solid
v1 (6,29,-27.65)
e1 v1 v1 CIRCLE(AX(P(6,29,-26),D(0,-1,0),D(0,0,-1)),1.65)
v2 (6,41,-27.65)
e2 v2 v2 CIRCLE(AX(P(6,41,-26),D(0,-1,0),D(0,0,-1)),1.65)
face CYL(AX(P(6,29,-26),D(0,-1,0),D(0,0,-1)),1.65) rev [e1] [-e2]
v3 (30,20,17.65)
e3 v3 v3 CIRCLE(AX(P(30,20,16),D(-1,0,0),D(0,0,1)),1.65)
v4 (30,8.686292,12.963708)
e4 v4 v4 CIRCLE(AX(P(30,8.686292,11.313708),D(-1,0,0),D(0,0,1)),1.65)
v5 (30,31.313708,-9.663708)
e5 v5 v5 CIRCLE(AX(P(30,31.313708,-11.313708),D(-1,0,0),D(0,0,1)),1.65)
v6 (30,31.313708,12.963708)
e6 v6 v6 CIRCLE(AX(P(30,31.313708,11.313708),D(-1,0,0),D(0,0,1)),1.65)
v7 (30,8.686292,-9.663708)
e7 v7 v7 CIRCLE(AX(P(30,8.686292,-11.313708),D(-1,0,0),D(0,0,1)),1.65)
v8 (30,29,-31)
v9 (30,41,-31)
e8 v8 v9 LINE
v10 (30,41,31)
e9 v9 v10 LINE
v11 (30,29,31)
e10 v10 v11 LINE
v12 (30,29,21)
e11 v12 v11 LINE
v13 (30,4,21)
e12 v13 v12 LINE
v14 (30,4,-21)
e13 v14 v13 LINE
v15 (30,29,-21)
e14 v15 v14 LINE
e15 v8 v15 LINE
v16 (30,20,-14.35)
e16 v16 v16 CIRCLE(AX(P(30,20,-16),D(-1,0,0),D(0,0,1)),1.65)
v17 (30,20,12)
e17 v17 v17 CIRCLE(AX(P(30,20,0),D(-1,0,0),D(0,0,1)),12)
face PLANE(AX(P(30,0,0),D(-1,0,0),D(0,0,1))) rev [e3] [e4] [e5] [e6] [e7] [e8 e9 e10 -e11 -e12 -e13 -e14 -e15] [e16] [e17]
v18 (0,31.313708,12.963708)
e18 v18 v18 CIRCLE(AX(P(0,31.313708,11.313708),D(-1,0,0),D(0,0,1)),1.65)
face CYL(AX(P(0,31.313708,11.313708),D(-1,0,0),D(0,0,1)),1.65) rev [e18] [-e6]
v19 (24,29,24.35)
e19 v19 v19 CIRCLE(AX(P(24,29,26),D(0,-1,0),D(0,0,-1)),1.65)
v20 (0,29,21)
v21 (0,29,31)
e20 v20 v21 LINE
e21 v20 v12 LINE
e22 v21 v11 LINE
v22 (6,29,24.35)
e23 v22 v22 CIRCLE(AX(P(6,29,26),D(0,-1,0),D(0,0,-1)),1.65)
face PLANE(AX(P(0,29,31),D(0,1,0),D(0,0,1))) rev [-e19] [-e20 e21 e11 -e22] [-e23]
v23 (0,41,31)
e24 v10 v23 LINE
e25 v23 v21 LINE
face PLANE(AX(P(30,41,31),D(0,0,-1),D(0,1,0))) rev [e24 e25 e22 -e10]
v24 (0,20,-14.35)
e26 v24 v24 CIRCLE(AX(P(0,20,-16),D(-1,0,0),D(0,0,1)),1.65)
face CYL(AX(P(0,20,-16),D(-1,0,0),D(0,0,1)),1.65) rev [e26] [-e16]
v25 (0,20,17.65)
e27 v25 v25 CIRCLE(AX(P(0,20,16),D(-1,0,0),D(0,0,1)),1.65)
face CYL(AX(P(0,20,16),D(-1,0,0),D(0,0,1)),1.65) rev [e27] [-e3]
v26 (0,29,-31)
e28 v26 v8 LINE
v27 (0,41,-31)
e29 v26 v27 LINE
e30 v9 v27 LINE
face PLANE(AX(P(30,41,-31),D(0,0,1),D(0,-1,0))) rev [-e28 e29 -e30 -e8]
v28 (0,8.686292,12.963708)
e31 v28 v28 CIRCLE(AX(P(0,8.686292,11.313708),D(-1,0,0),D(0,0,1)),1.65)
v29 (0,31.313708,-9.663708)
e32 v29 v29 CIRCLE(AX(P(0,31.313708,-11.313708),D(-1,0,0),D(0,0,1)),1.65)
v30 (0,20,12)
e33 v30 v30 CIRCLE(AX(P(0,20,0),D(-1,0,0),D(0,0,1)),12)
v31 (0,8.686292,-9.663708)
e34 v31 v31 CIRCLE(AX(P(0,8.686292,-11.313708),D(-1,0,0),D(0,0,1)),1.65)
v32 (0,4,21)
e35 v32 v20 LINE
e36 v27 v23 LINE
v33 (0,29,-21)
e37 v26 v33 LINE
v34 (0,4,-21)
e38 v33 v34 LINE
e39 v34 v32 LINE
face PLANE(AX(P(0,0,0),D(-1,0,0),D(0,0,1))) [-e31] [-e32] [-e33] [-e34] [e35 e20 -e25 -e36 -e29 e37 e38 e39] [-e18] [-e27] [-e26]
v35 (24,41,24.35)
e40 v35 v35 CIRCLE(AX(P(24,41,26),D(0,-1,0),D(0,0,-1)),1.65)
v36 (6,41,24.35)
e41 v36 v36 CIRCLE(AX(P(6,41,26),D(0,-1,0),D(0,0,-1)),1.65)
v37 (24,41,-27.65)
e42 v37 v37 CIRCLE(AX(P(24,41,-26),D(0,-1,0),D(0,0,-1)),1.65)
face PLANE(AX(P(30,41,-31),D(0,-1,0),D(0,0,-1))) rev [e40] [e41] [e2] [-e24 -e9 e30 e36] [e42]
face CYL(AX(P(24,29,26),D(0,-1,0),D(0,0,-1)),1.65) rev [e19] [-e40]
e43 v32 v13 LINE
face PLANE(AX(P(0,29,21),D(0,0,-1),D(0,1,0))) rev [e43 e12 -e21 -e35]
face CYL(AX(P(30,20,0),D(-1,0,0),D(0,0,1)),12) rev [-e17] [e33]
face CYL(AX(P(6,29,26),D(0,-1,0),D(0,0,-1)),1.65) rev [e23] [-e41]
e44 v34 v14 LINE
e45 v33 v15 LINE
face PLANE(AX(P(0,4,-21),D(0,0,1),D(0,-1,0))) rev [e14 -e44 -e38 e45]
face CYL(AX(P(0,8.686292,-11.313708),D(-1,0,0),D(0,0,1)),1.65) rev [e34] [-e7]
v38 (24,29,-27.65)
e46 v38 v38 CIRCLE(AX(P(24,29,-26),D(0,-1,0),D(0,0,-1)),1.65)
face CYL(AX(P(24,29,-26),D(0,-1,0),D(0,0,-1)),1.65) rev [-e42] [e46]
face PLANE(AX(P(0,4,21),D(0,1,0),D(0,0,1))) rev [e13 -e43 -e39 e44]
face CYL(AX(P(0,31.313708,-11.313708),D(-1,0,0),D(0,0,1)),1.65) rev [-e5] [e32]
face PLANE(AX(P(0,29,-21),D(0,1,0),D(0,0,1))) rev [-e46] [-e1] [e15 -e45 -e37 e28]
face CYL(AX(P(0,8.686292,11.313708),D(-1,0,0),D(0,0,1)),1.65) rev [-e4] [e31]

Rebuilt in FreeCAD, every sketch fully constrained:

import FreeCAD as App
import Part
import Sketcher
from FreeCAD import Vector
Q = App.Units.Quantity

doc = App.newDocument("Part")
body = doc.addObject("PartDesign::Body", "Body")

sketch1 = doc.addObject("Sketcher::SketchObject", "Sketch")
body.addObject(sketch1)
sketch1.AttachmentSupport = (doc.YZ_Plane, [""])
sketch1.MapMode = "FlatFace"
sketch1.addGeometry(Part.LineSegment(Vector(41, 31, 0), Vector(-41, 31, 0)), False)
sketch1.addGeometry(Part.LineSegment(Vector(-41, 31, 0), Vector(-41, -31, 0)), False)
sketch1.addGeometry(Part.LineSegment(Vector(-41, -31, 0), Vector(41, -31, 0)), False)
sketch1.addGeometry(Part.LineSegment(Vector(41, -31, 0), Vector(41, 31, 0)), False)
sketch1.addConstraint(Sketcher.Constraint("Coincident", 0, 2, 1, 1))
sketch1.addConstraint(Sketcher.Constraint("Coincident", 1, 2, 2, 1))
sketch1.addConstraint(Sketcher.Constraint("Coincident", 2, 2, 3, 1))
sketch1.addConstraint(Sketcher.Constraint("Coincident", 3, 2, 0, 1))
sketch1.addConstraint(Sketcher.Constraint("Horizontal", 0))
sketch1.addConstraint(Sketcher.Constraint("Vertical", 1))
sketch1.addConstraint(Sketcher.Constraint("Horizontal", 2))
sketch1.addConstraint(Sketcher.Constraint("Vertical", 3))
sketch1.addConstraint(Sketcher.Constraint("Symmetric", 0, 2, 2, 2, -1, 1))
sketch1.addConstraint(Sketcher.Constraint("DistanceX", 0, 2, 0, 1, Q("82 mm")))
sketch1.addConstraint(Sketcher.Constraint("DistanceY", 1, 2, 1, 1, Q("62 mm")))
pad1 = doc.addObject("PartDesign::Pad", "Pad")
body.addObject(pad1)
pad1.Profile = sketch1
pad1.Length = 30

sketch2 = doc.addObject("Sketcher::SketchObject", "Sketch001")
body.addObject(sketch2)
sketch2.AttachmentSupport = (doc.YZ_Plane, [""])
sketch2.MapMode = "FlatFace"
sketch2.addGeometry(Part.Circle(Vector(20, 0, 0), Vector(0, 0, 1), 12), False)
sketch2.addConstraint(Sketcher.Constraint("PointOnObject", 0, 3, -1))
sketch2.addConstraint(Sketcher.Constraint("Diameter", 0, Q("24 mm")))
sketch2.addConstraint(Sketcher.Constraint("DistanceX", -1, 1, 0, 3, Q("20 mm")))
pocket1 = doc.addObject("PartDesign::Pocket", "Pocket")
body.addObject(pocket1)
pocket1.Profile = sketch2
pocket1.Type = "ThroughAll"
pocket1.Reversed = True

sketch3 = doc.addObject("Sketcher::SketchObject", "Sketch002")
body.addObject(sketch3)
sketch3.AttachmentSupport = (doc.YZ_Plane, [""])
sketch3.MapMode = "FlatFace"
sketch3.AttachmentOffset = App.Placement(Vector(0, 0, 30), App.Rotation())
sketch3.addGeometry(Part.LineSegment(Vector(29, 21, 0), Vector(29, 31, 0)), False)
sketch3.addGeometry(Part.LineSegment(Vector(29, 31, 0), Vector(-41, 31, 0)), False)
sketch3.addGeometry(Part.LineSegment(Vector(-41, 31, 0), Vector(-41, -31, 0)), False)
sketch3.addGeometry(Part.LineSegment(Vector(-41, -31, 0), Vector(29, -31, 0)), False)
sketch3.addGeometry(Part.LineSegment(Vector(29, -31, 0), Vector(29, -21, 0)), False)
sketch3.addGeometry(Part.LineSegment(Vector(29, -21, 0), Vector(4, -21, 0)), False)
sketch3.addGeometry(Part.LineSegment(Vector(4, -21, 0), Vector(4, 21, 0)), False)
sketch3.addGeometry(Part.LineSegment(Vector(4, 21, 0), Vector(29, 21, 0)), False)
sketch3.addConstraint(Sketcher.Constraint("Coincident", 0, 2, 1, 1))
sketch3.addConstraint(Sketcher.Constraint("Coincident", 1, 2, 2, 1))
sketch3.addConstraint(Sketcher.Constraint("Coincident", 2, 2, 3, 1))
sketch3.addConstraint(Sketcher.Constraint("Coincident", 3, 2, 4, 1))
sketch3.addConstraint(Sketcher.Constraint("Coincident", 4, 2, 5, 1))
sketch3.addConstraint(Sketcher.Constraint("Coincident", 5, 2, 6, 1))
sketch3.addConstraint(Sketcher.Constraint("Coincident", 6, 2, 7, 1))
sketch3.addConstraint(Sketcher.Constraint("Coincident", 7, 2, 0, 1))
sketch3.addConstraint(Sketcher.Constraint("Vertical", 0))
sketch3.addConstraint(Sketcher.Constraint("Horizontal", 1))
sketch3.addConstraint(Sketcher.Constraint("Vertical", 2))
sketch3.addConstraint(Sketcher.Constraint("Horizontal", 3))
sketch3.addConstraint(Sketcher.Constraint("Vertical", 4))
sketch3.addConstraint(Sketcher.Constraint("Horizontal", 5))
sketch3.addConstraint(Sketcher.Constraint("Vertical", 6))
sketch3.addConstraint(Sketcher.Constraint("Horizontal", 7))
sketch3.addConstraint(Sketcher.Constraint("Symmetric", 0, 2, 3, 2, -1))
sketch3.addConstraint(Sketcher.Constraint("Equal", 0, 4))
sketch3.addConstraint(Sketcher.Constraint("DistanceX", 1, 2, 1, 1, Q("70 mm")))
sketch3.addConstraint(Sketcher.Constraint("DistanceX", 5, 2, 5, 1, Q("25 mm")))
sketch3.addConstraint(Sketcher.Constraint("DistanceY", 0, 1, 0, 2, Q("10 mm")))
sketch3.addConstraint(Sketcher.Constraint("DistanceY", 2, 2, 2, 1, Q("62 mm")))
sketch3.addConstraint(Sketcher.Constraint("DistanceX", -1, 1, 0, 2, Q("29 mm")))
pocket2 = doc.addObject("PartDesign::Pocket", "Pocket001")
body.addObject(pocket2)
pocket2.Profile = sketch3
pocket2.Type = "ThroughAll"

sketch4 = doc.addObject("Sketcher::SketchObject", "Sketch003")
body.addObject(sketch4)
sketch4.AttachmentSupport = (doc.YZ_Plane, [""])
sketch4.MapMode = "FlatFace"
sketch4.addGeometry(Part.Circle(Vector(31.3, -11.3, 0), Vector(0, 0, 1), 1.6), False)
sketch4.addGeometry(Part.Circle(Vector(8.7, 11.3, 0), Vector(0, 0, 1), 1.6), False)
sketch4.addGeometry(Part.Circle(Vector(31.3, 11.3, 0), Vector(0, 0, 1), 1.6), False)
sketch4.addGeometry(Part.Circle(Vector(20, 16, 0), Vector(0, 0, 1), 1.6), False)
sketch4.addGeometry(Part.Circle(Vector(8.7, -11.3, 0), Vector(0, 0, 1), 1.6), False)
sketch4.addGeometry(Part.Circle(Vector(20, -16, 0), Vector(0, 0, 1), 1.6), False)
sketch4.addConstraint(Sketcher.Constraint("Equal", 0, 1))
sketch4.addConstraint(Sketcher.Constraint("Equal", 1, 2))
sketch4.addConstraint(Sketcher.Constraint("Equal", 2, 3))
sketch4.addConstraint(Sketcher.Constraint("Equal", 3, 4))
sketch4.addConstraint(Sketcher.Constraint("Equal", 4, 5))
sketch4.addConstraint(Sketcher.Constraint("Symmetric", 0, 3, 2, 3, -1))
sketch4.addConstraint(Sketcher.Constraint("Symmetric", 1, 3, 4, 3, -1))
sketch4.addConstraint(Sketcher.Constraint("Symmetric", 3, 3, 5, 3, -1))
sketch4.addConstraint(Sketcher.Constraint("Horizontal", 1, 3, 2, 3))
sketch4.addConstraint(Sketcher.Constraint("Diameter", 0, Q("3.3 mm")))
sketch4.addConstraint(Sketcher.Constraint("DistanceX", -1, 1, 3, 3, Q("20 mm")))
sketch4.addConstraint(Sketcher.Constraint("DistanceY", -1, 1, 3, 3, Q("16 mm")))
sketch4.addConstraint(Sketcher.Constraint("DistanceX", -1, 1, 0, 3, Q("31.313708 mm")))
sketch4.addConstraint(Sketcher.Constraint("DistanceY", 0, 3, -1, 1, Q("11.313708 mm")))
sketch4.addConstraint(Sketcher.Constraint("DistanceX", -1, 1, 1, 3, Q("8.686292 mm")))
doc.recompute()
hole = doc.addObject("PartDesign::Hole", "Hole")
body.addObject(hole)
hole.Profile = sketch4
hole.ThreadType = "None"
hole.Diameter = 3.3
hole.DepthType = "ThroughAll"
hole.Reversed = True

sketch5 = doc.addObject("Sketcher::SketchObject", "Sketch004")
body.addObject(sketch5)
sketch5.AttachmentSupport = (doc.XZ_Plane, [""])
sketch5.MapMode = "FlatFace"
sketch5.AttachmentOffset = App.Placement(Vector(0, 0, -29), App.Rotation())
sketch5.addGeometry(Part.Circle(Vector(6, -26, 0), Vector(0, 0, 1), 1.6), False)
sketch5.addGeometry(Part.Circle(Vector(24, -26, 0), Vector(0, 0, 1), 1.6), False)
sketch5.addGeometry(Part.Circle(Vector(6, 26, 0), Vector(0, 0, 1), 1.6), False)
sketch5.addGeometry(Part.Circle(Vector(24, 26, 0), Vector(0, 0, 1), 1.6), False)
sketch5.addConstraint(Sketcher.Constraint("Equal", 0, 1))
sketch5.addConstraint(Sketcher.Constraint("Equal", 1, 2))
sketch5.addConstraint(Sketcher.Constraint("Equal", 2, 3))
sketch5.addConstraint(Sketcher.Constraint("Symmetric", 0, 3, 2, 3, -1))
sketch5.addConstraint(Sketcher.Constraint("Symmetric", 1, 3, 3, 3, -1))
sketch5.addConstraint(Sketcher.Constraint("Horizontal", 0, 3, 1, 3))
sketch5.addConstraint(Sketcher.Constraint("Diameter", 0, Q("3.3 mm")))
sketch5.addConstraint(Sketcher.Constraint("DistanceX", -1, 1, 0, 3, Q("6 mm")))
sketch5.addConstraint(Sketcher.Constraint("DistanceY", 0, 3, -1, 1, Q("26 mm")))
sketch5.addConstraint(Sketcher.Constraint("DistanceX", -1, 1, 1, 3, Q("24 mm")))
doc.recompute()
hole2 = doc.addObject("PartDesign::Hole", "Hole001")
body.addObject(hole2)
hole2.Profile = sketch5
hole2.ThreadType = "None"
hole2.Diameter = 3.3
hole2.DepthType = "ThroughAll"

doc.recompute()
